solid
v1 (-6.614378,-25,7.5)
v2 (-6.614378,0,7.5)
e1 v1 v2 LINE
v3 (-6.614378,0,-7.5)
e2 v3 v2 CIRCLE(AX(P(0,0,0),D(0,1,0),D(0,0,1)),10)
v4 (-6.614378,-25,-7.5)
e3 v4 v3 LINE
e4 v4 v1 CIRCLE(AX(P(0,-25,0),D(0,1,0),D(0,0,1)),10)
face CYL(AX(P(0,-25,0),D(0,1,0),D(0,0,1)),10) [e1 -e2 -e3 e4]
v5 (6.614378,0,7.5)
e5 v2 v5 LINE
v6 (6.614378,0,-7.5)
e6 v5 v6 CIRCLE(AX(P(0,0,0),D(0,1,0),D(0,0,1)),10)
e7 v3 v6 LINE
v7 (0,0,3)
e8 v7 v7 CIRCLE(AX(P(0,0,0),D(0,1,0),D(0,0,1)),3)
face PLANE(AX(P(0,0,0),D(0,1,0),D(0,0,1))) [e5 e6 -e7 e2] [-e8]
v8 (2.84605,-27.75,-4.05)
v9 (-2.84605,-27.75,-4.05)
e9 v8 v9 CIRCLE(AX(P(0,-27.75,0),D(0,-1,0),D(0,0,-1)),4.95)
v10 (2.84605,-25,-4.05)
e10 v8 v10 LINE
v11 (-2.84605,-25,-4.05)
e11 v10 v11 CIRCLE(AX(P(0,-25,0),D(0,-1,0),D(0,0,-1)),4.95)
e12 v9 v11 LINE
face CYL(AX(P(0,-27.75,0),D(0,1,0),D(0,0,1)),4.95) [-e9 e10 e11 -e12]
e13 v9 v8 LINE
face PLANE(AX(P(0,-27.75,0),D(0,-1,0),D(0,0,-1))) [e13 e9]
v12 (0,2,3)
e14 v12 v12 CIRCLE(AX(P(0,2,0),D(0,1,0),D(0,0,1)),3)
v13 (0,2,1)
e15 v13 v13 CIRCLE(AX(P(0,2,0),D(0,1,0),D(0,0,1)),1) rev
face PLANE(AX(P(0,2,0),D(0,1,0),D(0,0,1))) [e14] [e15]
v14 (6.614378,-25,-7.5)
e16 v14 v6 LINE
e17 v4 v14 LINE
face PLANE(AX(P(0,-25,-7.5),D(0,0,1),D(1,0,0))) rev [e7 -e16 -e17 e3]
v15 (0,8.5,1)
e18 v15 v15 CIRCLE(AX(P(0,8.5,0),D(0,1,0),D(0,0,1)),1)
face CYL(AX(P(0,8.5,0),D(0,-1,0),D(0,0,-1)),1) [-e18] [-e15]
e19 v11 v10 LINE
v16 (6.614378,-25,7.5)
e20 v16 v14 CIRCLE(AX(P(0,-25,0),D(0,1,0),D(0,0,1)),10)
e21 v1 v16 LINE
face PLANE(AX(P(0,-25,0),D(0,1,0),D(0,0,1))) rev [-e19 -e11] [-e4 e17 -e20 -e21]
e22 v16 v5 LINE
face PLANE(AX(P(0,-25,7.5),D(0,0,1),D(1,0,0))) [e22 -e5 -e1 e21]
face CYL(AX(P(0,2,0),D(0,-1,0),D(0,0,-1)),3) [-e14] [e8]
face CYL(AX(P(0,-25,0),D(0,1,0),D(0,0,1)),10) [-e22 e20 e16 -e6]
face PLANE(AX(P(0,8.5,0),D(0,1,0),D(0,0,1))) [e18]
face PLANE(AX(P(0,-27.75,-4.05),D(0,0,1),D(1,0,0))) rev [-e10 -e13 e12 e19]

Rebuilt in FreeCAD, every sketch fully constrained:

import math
import FreeCAD as App
import Part
import Sketcher
Q = App.Units.Quantity

doc = App.newDocument("Part")
body = doc.addObject("PartDesign::Body", "Body")

sketch1 = body.newObject("Sketcher::SketchObject", "Sketch")
sketch1.AttachmentSupport = (doc.getObject("XZ_Plane"), [""])
sketch1.MapMode = "FlatFace"
sketch1.addGeometry([
    Part.ArcOfCircle(Part.Circle(App.Vector(0, 0, 0), App.Vector(0, 0, 1), 10), math.radians(131), math.radians(229)),
    Part.LineSegment(App.Vector(-7, 8, 0), App.Vector(7, 8, 0)),
    Part.ArcOfCircle(Part.Circle(App.Vector(0, 0, 0), App.Vector(0, 0, 1), 10), math.radians(0), math.radians(49)),
    Part.ArcOfCircle(Part.Circle(App.Vector(0, 0, 0), App.Vector(0, 0, 1), 10), math.radians(-49), math.radians(0)),
    Part.LineSegment(App.Vector(7, -8, 0), App.Vector(-7, -8, 0)),
], False)
sketch1.addConstraint([
    Sketcher.Constraint("Coincident", 0, 1, 1, 1),
    Sketcher.Constraint("Coincident", 1, 2, 2, 2),
    Sketcher.Constraint("Tangent", 2, 1, 3, 2),
    Sketcher.Constraint("Coincident", 3, 1, 4, 1),
    Sketcher.Constraint("Coincident", 4, 2, 0, 2),
    Sketcher.Constraint("Horizontal", 1),
    Sketcher.Constraint("Horizontal", 4),
    Sketcher.Constraint("Coincident", 0, 3, -1, 1),
    Sketcher.Constraint("Coincident", 2, 3, -1, 1),
    Sketcher.Constraint("Equal", 0, 2),
    Sketcher.Constraint("Equal", 2, 3),
    Sketcher.Constraint("PointOnObject", 2, 1, -1),
    Sketcher.Constraint("Vertical", 1, 2, 3, 1),
    Sketcher.Constraint("Radius", 0, Q("10 mm")),
    Sketcher.Constraint("DistanceY", 3, 1, 1, 2, Q("15 mm")),
])
pad1 = body.newObject("PartDesign::Pad", "Pad")
pad1.Profile = sketch1
pad1.Length = 25

sketch2 = body.newObject("Sketcher::SketchObject", "Sketch001")
sketch2.AttachmentSupport = (doc.getObject("XZ_Plane"), [""])
sketch2.MapMode = "FlatFace"
sketch2.addGeometry(Part.Circle(App.Vector(0, 0, 0), App.Vector(0, 0, 1), 3), False)
sketch2.addConstraint([
    Sketcher.Constraint("Coincident", 0, 3, -1, 1),
    Sketcher.Constraint("Diameter", 0, Q("6 mm")),
])
pad2 = body.newObject("PartDesign::Pad", "Pad001")
pad2.Profile = sketch2
pad2.Length = 2
pad2.Reversed = True

sketch3 = body.newObject("Sketcher::SketchObject", "Sketch002")
sketch3.AttachmentSupport = (doc.getObject("XZ_Plane"), [""])
sketch3.MapMode = "FlatFace"
sketch3.addGeometry(Part.Circle(App.Vector(0, 0, 0), App.Vector(0, 0, 1), 1), False)
sketch3.addConstraint([
    Sketcher.Constraint("Coincident", 0, 3, -1, 1),
    Sketcher.Constraint("Diameter", 0, Q("2 mm")),
])
pad3 = body.newObject("PartDesign::Pad", "Pad002")
pad3.Profile = sketch3
pad3.Length = 8.5
pad3.Reversed = True

sketch4 = body.newObject("Sketcher::SketchObject", "Sketch003")
sketch4.AttachmentSupport = (doc.getObject("XZ_Plane"), [""])
sketch4.MapMode = "FlatFace"
sketch4.AttachmentOffset = App.Placement(App.Vector(0, 0, 25), App.Rotation())
sketch4.addGeometry([
    Part.ArcOfCircle(Part.Circle(App.Vector(0, 0, 0), App.Vector(0, 0, 1), 5), math.radians(90), math.radians(235)),
    Part.LineSegment(App.Vector(-2.8, -4, 0), App.Vector(2.8, -4, 0)),
    Part.ArcOfCircle(Part.Circle(App.Vector(0, 0, 0), App.Vector(0, 0, 1), 5), math.radians(-55), math.radians(0)),
    Part.ArcOfCircle(Part.Circle(App.Vector(0, 0, 0), App.Vector(0, 0, 1), 5), math.radians(0), math.radians(90)),
], False)
sketch4.addConstraint([
    Sketcher.Constraint("Coincident", 0, 2, 1, 1),
    Sketcher.Constraint("Coincident", 1, 2, 2, 1),
    Sketcher.Constraint("Tangent", 2, 2, 3, 1),
    Sketcher.Constraint("Tangent", 3, 2, 0, 1),
    Sketcher.Constraint("Horizontal", 1),
    Sketcher.Constraint("Coincident", 0, 3, -1, 1),
    Sketcher.Constraint("Coincident", 2, 3, -1, 1),
    Sketcher.Constraint("PointOnObject", 2, 2, -1),
    Sketcher.Constraint("PointOnObject", 3, 2, -2),
    Sketcher.Constraint("Radius", 0, Q("4.95 mm")),
    Sketcher.Constraint("DistanceY", 1, 2, 3, 2, Q("9 mm")),
])
pad4 = body.newObject("PartDesign::Pad", "Pad003")
pad4.Profile = sketch4
pad4.Length = 2.75

doc.recompute()
